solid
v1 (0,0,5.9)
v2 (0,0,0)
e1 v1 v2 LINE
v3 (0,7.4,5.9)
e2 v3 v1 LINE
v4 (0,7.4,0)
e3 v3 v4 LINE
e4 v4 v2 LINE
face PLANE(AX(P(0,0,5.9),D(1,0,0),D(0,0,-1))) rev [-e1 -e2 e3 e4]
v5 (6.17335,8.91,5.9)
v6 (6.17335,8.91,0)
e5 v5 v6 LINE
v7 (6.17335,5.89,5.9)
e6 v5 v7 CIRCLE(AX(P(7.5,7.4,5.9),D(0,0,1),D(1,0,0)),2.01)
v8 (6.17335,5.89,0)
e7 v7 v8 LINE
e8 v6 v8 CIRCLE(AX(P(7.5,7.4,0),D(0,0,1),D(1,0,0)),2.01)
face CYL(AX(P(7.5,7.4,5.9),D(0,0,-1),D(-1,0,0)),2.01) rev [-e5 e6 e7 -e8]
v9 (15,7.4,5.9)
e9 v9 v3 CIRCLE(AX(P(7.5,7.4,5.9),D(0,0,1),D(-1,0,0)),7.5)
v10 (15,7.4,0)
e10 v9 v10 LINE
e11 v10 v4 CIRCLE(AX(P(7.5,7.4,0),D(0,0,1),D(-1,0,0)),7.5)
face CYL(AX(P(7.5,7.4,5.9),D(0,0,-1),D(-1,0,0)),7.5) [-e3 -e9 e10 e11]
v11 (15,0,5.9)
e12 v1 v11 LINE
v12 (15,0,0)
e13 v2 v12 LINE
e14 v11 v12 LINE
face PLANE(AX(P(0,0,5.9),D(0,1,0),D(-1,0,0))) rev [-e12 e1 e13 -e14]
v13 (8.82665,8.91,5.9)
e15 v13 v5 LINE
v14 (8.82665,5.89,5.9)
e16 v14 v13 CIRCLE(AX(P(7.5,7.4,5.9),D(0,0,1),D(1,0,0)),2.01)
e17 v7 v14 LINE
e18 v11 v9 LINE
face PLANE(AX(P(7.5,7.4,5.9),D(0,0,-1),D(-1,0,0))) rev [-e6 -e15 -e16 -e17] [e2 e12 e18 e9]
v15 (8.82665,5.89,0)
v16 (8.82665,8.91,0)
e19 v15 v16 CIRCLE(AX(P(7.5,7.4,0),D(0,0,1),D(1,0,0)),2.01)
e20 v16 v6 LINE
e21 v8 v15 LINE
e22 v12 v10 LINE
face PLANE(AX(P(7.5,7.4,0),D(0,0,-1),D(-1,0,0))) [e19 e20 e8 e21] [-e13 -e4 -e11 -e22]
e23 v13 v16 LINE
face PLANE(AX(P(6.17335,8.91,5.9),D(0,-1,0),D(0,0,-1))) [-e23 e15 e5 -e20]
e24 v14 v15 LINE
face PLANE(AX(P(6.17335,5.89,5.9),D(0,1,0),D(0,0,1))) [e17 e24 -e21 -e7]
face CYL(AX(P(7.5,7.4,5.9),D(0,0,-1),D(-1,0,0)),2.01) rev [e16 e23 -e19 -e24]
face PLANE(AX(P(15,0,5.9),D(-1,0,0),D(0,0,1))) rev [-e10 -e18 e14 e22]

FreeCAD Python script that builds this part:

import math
import FreeCAD as App
import Part
import Sketcher

doc = App.newDocument("Part")
body = doc.addObject("PartDesign::Body", "Body")

# Sketch on XY plane
sketch1 = doc.addObject("Sketcher::SketchObject", "Sketch")
body.addObject(sketch1)
sketch1.AttachmentSupport = (doc.XY_Plane, [""])
sketch1.MapMode = "FlatFace"
sketch1.addGeometry([
    Part.LineSegment(App.Vector(0, 0, 0), App.Vector(15, 0, 0)),  # 0
    Part.LineSegment(App.Vector(15, 0, 0), App.Vector(15, 7.4, 0)),  # 1
    Part.ArcOfCircle(Part.Circle(App.Vector(7.5, 7.4, 0), App.Vector(0, 0, 1), 7.5), math.radians(0), math.radians(180)),  # 2
    Part.LineSegment(App.Vector(0, 7.4, 0), App.Vector(0, 0, 0)),  # 3
    Part.ArcOfCircle(Part.Circle(App.Vector(7.5, 7.4, 0), App.Vector(0, 0, 1), 2), math.radians(131), math.radians(229)),  # 4
    Part.LineSegment(App.Vector(6.2, 8.9, 0), App.Vector(8.8, 8.9, 0)),  # 5
    Part.ArcOfCircle(Part.Circle(App.Vector(7.5, 7.4, 0), App.Vector(0, 0, 1), 2), math.radians(-49), math.radians(49)),  # 6
    Part.LineSegment(App.Vector(8.8, 5.9, 0), App.Vector(6.2, 5.9, 0)),  # 7
], False)
sketch1.addConstraint([
    Sketcher.Constraint("Coincident", 0, 2, 1, 1),
    Sketcher.Constraint("Tangent", 1, 2, 2, 1),
    Sketcher.Constraint("Tangent", 2, 2, 3, 1),
    Sketcher.Constraint("Coincident", 3, 2, 0, 1),
    Sketcher.Constraint("Coincident", 4, 1, 5, 1),
    Sketcher.Constraint("Coincident", 5, 2, 6, 2),
    Sketcher.Constraint("Coincident", 6, 1, 7, 1),
    Sketcher.Constraint("Coincident", 7, 2, 4, 2),
    Sketcher.Constraint("Horizontal", 0),
    Sketcher.Constraint("Vertical", 1),
    Sketcher.Constraint("Vertical", 3),
    Sketcher.Constraint("Horizontal", 5),
    Sketcher.Constraint("Horizontal", 7),
    Sketcher.Constraint("Coincident", 3, 2, -1, 1),
    Sketcher.Constraint("Coincident", 4, 3, 2, 3),
    Sketcher.Constraint("Coincident", 6, 3, 2, 3),
    Sketcher.Constraint("Equal", 4, 6),
    Sketcher.Constraint("Vertical", 5, 2, 6, 1),
    Sketcher.Constraint("Radius", 2, 7.5),
    Sketcher.Constraint("Radius", 4, 2.01),
    Sketcher.Constraint("DistanceY", 1, 1, 1, 2, 7.4),
    Sketcher.Constraint("DistanceY", -1, 1, 4, 1, 8.91),
])
pad1 = doc.addObject("PartDesign::Pad", "Pad")
body.addObject(pad1)
pad1.Profile = sketch1
pad1.Length = 5.9

doc.recompute()
